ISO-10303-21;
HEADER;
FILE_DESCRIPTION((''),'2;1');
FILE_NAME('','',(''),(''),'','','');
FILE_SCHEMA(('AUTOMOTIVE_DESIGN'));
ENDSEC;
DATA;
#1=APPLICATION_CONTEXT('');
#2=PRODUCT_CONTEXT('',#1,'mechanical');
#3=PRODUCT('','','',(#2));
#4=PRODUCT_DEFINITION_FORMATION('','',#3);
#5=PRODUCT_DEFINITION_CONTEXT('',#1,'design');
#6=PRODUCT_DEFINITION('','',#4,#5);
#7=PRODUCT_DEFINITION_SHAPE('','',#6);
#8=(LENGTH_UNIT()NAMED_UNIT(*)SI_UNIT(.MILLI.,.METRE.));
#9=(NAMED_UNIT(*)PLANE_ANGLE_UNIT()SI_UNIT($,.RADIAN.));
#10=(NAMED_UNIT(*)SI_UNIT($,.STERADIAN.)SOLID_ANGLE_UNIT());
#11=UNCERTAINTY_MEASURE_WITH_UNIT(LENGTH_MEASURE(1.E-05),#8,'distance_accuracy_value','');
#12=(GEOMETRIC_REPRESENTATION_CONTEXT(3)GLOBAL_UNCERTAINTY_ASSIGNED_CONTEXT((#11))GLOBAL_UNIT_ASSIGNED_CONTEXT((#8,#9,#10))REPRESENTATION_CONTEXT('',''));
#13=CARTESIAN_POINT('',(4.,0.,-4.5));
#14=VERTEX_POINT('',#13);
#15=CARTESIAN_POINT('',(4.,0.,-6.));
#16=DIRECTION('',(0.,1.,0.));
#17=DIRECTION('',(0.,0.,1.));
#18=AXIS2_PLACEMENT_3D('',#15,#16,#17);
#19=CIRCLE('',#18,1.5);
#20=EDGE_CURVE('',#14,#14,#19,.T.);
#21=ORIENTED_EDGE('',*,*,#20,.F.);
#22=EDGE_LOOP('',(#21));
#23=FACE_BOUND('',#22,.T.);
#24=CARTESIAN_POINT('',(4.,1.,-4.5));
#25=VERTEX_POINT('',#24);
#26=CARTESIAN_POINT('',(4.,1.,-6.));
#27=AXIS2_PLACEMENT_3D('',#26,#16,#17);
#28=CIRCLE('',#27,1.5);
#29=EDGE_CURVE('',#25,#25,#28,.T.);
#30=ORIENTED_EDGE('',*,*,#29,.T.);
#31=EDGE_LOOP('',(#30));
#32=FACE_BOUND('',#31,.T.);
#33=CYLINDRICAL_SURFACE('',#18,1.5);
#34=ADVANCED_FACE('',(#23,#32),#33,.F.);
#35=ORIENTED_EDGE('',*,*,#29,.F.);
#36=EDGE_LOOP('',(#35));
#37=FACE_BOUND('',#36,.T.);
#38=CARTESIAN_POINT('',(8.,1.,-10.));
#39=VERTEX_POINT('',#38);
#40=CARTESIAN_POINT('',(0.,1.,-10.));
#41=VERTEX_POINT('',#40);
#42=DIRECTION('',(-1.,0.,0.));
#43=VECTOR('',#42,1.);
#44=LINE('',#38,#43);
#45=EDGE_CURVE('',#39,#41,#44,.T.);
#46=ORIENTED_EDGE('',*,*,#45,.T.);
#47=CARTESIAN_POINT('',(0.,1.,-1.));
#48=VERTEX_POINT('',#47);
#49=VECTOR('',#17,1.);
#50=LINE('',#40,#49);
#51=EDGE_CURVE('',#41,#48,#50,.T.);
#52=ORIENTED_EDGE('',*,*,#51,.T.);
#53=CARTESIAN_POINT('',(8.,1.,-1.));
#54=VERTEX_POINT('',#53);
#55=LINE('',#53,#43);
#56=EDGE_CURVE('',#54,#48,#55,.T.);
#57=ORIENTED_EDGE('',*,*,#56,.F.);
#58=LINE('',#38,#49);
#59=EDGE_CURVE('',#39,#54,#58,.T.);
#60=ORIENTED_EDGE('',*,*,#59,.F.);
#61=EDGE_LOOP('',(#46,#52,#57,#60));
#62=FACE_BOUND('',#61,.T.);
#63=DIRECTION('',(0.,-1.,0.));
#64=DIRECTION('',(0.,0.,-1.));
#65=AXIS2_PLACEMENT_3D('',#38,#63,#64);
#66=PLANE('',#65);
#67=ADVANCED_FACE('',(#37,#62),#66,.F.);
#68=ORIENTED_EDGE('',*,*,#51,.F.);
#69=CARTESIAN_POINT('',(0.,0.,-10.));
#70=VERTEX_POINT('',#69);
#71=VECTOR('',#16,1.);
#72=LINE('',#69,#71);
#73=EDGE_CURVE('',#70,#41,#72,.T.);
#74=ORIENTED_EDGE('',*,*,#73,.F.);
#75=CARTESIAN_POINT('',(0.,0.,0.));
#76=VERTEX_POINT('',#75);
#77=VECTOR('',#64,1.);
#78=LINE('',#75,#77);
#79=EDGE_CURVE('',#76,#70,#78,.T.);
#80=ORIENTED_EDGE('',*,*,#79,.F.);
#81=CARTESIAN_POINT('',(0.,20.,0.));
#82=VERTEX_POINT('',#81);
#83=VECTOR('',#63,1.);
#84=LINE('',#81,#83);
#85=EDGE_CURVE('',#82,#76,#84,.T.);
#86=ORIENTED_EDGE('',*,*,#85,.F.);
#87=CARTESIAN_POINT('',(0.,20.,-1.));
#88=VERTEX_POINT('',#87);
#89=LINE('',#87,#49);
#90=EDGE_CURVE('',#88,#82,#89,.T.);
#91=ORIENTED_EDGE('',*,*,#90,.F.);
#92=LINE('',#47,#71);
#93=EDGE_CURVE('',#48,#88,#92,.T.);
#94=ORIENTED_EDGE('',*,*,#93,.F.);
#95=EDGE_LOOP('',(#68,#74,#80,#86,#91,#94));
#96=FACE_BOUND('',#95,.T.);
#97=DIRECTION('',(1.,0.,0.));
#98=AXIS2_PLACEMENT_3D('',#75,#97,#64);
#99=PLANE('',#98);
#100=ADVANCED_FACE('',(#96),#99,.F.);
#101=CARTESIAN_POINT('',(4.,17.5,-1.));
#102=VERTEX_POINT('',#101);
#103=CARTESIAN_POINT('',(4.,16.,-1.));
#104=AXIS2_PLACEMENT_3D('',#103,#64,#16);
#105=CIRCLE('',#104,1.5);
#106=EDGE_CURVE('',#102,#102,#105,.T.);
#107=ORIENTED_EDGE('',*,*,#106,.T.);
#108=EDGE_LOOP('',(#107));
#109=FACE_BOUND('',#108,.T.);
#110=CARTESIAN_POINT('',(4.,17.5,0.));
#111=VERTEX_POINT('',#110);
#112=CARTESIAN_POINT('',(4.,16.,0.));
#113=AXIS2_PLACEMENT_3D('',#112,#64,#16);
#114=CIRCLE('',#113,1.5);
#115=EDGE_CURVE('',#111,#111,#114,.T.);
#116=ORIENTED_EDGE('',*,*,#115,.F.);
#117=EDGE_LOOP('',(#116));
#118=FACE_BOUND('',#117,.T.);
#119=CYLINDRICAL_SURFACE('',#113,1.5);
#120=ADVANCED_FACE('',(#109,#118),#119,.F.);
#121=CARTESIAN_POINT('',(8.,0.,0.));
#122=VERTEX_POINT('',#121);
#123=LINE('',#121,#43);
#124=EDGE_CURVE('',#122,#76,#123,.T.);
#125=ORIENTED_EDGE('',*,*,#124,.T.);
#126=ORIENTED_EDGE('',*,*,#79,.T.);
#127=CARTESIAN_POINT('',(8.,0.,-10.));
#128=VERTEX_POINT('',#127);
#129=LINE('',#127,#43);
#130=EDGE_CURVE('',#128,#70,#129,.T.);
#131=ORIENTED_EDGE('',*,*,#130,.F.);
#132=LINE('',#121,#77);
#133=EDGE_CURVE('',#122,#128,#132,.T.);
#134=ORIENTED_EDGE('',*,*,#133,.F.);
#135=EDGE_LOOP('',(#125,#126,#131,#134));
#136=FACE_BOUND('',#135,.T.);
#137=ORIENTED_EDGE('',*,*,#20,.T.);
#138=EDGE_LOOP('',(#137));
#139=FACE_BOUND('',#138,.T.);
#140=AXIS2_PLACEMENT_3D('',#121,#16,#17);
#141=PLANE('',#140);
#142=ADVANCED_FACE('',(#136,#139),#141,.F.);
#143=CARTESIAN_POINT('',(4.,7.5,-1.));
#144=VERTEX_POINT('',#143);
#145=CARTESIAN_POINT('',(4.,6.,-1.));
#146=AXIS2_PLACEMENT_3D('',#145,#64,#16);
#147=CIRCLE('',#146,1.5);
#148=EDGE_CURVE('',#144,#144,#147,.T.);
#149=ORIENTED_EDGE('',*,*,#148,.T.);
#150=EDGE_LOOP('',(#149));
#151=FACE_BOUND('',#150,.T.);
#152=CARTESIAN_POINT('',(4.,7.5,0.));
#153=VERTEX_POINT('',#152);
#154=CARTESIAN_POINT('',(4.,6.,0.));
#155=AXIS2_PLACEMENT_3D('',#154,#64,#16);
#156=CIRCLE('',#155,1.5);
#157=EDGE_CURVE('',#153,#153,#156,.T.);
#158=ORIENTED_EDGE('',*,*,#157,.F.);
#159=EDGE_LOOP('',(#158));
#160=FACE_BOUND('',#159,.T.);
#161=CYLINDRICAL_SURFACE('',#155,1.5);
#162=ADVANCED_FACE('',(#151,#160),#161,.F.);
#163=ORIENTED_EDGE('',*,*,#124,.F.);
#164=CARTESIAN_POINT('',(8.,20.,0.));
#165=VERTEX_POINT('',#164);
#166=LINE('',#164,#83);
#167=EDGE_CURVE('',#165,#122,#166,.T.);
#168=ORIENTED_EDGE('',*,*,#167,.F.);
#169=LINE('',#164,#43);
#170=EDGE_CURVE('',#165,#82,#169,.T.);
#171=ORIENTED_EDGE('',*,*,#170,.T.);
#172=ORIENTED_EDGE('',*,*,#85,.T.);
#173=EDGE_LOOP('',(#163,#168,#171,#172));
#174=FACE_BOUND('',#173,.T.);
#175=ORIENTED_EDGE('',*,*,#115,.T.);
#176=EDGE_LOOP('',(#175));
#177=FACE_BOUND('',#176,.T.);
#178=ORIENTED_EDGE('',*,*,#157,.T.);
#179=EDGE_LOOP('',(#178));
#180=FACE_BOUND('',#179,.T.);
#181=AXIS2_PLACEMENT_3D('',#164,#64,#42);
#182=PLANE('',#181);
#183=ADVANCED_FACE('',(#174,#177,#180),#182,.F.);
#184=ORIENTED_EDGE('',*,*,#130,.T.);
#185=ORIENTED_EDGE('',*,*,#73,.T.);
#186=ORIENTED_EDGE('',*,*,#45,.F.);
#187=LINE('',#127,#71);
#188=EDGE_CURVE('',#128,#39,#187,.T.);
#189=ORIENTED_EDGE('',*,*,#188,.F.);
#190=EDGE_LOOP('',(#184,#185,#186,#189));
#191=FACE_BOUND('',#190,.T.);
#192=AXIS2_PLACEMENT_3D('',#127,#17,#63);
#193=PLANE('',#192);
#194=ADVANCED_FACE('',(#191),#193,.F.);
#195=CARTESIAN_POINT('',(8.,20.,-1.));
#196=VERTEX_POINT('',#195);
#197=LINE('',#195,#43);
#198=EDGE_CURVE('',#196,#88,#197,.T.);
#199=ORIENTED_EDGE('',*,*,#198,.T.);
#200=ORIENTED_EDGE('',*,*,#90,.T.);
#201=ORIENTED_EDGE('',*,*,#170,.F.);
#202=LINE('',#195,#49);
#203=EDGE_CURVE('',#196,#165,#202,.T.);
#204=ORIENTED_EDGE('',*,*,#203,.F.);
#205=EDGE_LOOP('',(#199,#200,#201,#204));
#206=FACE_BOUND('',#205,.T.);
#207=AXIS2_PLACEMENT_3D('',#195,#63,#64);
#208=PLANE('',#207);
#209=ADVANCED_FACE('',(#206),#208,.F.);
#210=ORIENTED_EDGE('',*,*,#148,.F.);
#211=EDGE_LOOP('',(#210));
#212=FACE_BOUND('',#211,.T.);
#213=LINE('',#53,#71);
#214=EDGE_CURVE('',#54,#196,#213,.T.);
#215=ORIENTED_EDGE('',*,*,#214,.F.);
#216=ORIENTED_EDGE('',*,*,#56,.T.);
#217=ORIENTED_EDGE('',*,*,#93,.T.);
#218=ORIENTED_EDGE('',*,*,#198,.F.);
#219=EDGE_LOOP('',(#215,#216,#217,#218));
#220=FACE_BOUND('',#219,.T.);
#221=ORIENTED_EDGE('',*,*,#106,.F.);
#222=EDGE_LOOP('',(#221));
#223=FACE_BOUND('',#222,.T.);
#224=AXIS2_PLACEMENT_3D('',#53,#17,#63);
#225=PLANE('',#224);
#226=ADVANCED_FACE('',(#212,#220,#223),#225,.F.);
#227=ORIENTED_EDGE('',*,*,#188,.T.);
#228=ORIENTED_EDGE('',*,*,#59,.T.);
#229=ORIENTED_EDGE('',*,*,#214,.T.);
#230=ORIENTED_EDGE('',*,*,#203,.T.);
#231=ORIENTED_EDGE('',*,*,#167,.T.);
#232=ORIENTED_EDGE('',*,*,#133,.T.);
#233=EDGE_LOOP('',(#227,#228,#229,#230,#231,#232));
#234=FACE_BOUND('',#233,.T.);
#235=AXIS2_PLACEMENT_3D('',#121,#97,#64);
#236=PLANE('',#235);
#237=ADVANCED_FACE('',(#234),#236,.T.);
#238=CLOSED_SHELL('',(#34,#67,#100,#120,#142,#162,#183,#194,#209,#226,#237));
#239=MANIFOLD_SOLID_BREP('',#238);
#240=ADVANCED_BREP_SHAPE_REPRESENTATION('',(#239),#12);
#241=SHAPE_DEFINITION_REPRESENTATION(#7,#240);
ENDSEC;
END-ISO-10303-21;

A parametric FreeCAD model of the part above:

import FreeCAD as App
import Part
import Sketcher
Q = App.Units.Quantity


def add_polygon(sketch, points):
    """Adds a closed chain of lines whose ends are joined by coincident constraints."""
    first, n = sketch.GeometryCount, len(points)
    for a, b in zip(points, points[1:] + points[:1]):
        sketch.addGeometry(Part.LineSegment(App.Vector(*a, 0), App.Vector(*b, 0)), False)
    for i in range(n):
        sketch.addConstraint(Sketcher.Constraint("Coincident", first + i, 2, first + (i + 1) % n, 1))

doc = App.newDocument("Part")
params = doc.addObject("Spreadsheet::Sheet", "Params")
for row, (alias, value) in enumerate([
    ("sketch1_width", "1 mm"),
    ("sketch1_width2", "19 mm"),
    ("sketch1_height", "10 mm"),
    ("pad1_length", "8 mm"),
    ("sketch2_diameter", "3 mm"),
    ("sketch3_diameter", "3 mm"),
], start=1):
    params.set(f"A{row}", alias)
    params.set(f"B{row}", "=" + value)
    params.setAlias(f"B{row}", alias)

body = doc.addObject("PartDesign::Body", "Body")

# Sketch on YZ plane
sketch1 = body.newObject("Sketcher::SketchObject", "Sketch")
sketch1.AttachmentSupport = (doc.getObject("YZ_Plane"), [""])
sketch1.MapMode = "FlatFace"
add_polygon(sketch1, [(0, 0), (0, -10), (1, -10), (1, -1), (20, -1), (20, 0)])  # lines 0-5
sketch1.addConstraint(Sketcher.Constraint("Vertical", 0))
sketch1.addConstraint(Sketcher.Constraint("Horizontal", 1))
sketch1.addConstraint(Sketcher.Constraint("Vertical", 2))
sketch1.addConstraint(Sketcher.Constraint("Horizontal", 3))
sketch1.addConstraint(Sketcher.Constraint("Vertical", 4))
sketch1.addConstraint(Sketcher.Constraint("Horizontal", 5))
sketch1.addConstraint(Sketcher.Constraint("Coincident", 5, 2, -1, 1))
sketch1.addConstraint(Sketcher.Constraint("Equal", 1, 4))
sketch1.addConstraint(Sketcher.Constraint("DistanceX", 1, 1, 1, 2, Q("1 mm")))
sketch1.addConstraint(Sketcher.Constraint("DistanceX", 3, 1, 3, 2, Q("19 mm")))
sketch1.addConstraint(Sketcher.Constraint("DistanceY", 0, 2, 0, 1, Q("10 mm")))
sketch1.setExpression("Constraints[14]", "Params.sketch1_width")
sketch1.setExpression("Constraints[15]", "Params.sketch1_width2")
sketch1.setExpression("Constraints[16]", "Params.sketch1_height")
pad1 = body.newObject("PartDesign::Pad", "Pad")
pad1.Profile = sketch1
pad1.setExpression("Length", "Params.pad1_length")

# Sketch on XZ plane
sketch2 = body.newObject("Sketcher::SketchObject", "Sketch001")
sketch2.AttachmentSupport = (doc.getObject("XZ_Plane"), [""])
sketch2.MapMode = "FlatFace"
sketch2.AttachmentOffset = App.Placement(App.Vector(0, 0, -1), App.Rotation())
sketch2.addGeometry(Part.Circle(App.Vector(4, -6, 0), App.Vector(0, 0, 1), 1.5), False)
sketch2.addConstraint(Sketcher.Constraint("Diameter", 0, Q("3 mm")))
sketch2.addConstraint(Sketcher.Constraint("DistanceX", -1, 1, 0, 3, Q("4 mm")))
sketch2.addConstraint(Sketcher.Constraint("DistanceY", 0, 3, -1, 1, Q("6 mm")))
sketch2.setExpression("Constraints[0]", "Params.sketch2_diameter")
pocket1 = body.newObject("PartDesign::Pocket", "Pocket")
pocket1.Profile = sketch2
pocket1.Type = "ThroughAll"
pocket1.Reversed = True

# Sketch on XY plane
sketch3 = body.newObject("Sketcher::SketchObject", "Sketch002")
sketch3.AttachmentSupport = (doc.getObject("XY_Plane"), [""])
sketch3.MapMode = "FlatFace"
sketch3.AttachmentOffset = App.Placement(App.Vector(0, 0, -1), App.Rotation())
sketch3.addGeometry(Part.Circle(App.Vector(4, 16, 0), App.Vector(0, 0, 1), 1.5), False)
sketch3.addGeometry(Part.Circle(App.Vector(4, 6, 0), App.Vector(0, 0, 1), 1.5), False)
sketch3.addConstraint(Sketcher.Constraint("Equal", 0, 1))
sketch3.addConstraint(Sketcher.Constraint("Vertical", 0, 3, 1, 3))
sketch3.addConstraint(Sketcher.Constraint("Diameter", 0, Q("3 mm")))
sketch3.addConstraint(Sketcher.Constraint("DistanceX", -1, 1, 0, 3, Q("4 mm")))
sketch3.addConstraint(Sketcher.Constraint("DistanceY", -1, 1, 0, 3, Q("16 mm")))
sketch3.addConstraint(Sketcher.Constraint("DistanceY", -1, 1, 1, 3, Q("6 mm")))
sketch3.setExpression("Constraints[2]", "Params.sketch3_diameter")
pocket2 = body.newObject("PartDesign::Pocket", "Pocket001")
pocket2.Profile = sketch3
pocket2.Type = "ThroughAll"
pocket2.Reversed = True

doc.recompute()
